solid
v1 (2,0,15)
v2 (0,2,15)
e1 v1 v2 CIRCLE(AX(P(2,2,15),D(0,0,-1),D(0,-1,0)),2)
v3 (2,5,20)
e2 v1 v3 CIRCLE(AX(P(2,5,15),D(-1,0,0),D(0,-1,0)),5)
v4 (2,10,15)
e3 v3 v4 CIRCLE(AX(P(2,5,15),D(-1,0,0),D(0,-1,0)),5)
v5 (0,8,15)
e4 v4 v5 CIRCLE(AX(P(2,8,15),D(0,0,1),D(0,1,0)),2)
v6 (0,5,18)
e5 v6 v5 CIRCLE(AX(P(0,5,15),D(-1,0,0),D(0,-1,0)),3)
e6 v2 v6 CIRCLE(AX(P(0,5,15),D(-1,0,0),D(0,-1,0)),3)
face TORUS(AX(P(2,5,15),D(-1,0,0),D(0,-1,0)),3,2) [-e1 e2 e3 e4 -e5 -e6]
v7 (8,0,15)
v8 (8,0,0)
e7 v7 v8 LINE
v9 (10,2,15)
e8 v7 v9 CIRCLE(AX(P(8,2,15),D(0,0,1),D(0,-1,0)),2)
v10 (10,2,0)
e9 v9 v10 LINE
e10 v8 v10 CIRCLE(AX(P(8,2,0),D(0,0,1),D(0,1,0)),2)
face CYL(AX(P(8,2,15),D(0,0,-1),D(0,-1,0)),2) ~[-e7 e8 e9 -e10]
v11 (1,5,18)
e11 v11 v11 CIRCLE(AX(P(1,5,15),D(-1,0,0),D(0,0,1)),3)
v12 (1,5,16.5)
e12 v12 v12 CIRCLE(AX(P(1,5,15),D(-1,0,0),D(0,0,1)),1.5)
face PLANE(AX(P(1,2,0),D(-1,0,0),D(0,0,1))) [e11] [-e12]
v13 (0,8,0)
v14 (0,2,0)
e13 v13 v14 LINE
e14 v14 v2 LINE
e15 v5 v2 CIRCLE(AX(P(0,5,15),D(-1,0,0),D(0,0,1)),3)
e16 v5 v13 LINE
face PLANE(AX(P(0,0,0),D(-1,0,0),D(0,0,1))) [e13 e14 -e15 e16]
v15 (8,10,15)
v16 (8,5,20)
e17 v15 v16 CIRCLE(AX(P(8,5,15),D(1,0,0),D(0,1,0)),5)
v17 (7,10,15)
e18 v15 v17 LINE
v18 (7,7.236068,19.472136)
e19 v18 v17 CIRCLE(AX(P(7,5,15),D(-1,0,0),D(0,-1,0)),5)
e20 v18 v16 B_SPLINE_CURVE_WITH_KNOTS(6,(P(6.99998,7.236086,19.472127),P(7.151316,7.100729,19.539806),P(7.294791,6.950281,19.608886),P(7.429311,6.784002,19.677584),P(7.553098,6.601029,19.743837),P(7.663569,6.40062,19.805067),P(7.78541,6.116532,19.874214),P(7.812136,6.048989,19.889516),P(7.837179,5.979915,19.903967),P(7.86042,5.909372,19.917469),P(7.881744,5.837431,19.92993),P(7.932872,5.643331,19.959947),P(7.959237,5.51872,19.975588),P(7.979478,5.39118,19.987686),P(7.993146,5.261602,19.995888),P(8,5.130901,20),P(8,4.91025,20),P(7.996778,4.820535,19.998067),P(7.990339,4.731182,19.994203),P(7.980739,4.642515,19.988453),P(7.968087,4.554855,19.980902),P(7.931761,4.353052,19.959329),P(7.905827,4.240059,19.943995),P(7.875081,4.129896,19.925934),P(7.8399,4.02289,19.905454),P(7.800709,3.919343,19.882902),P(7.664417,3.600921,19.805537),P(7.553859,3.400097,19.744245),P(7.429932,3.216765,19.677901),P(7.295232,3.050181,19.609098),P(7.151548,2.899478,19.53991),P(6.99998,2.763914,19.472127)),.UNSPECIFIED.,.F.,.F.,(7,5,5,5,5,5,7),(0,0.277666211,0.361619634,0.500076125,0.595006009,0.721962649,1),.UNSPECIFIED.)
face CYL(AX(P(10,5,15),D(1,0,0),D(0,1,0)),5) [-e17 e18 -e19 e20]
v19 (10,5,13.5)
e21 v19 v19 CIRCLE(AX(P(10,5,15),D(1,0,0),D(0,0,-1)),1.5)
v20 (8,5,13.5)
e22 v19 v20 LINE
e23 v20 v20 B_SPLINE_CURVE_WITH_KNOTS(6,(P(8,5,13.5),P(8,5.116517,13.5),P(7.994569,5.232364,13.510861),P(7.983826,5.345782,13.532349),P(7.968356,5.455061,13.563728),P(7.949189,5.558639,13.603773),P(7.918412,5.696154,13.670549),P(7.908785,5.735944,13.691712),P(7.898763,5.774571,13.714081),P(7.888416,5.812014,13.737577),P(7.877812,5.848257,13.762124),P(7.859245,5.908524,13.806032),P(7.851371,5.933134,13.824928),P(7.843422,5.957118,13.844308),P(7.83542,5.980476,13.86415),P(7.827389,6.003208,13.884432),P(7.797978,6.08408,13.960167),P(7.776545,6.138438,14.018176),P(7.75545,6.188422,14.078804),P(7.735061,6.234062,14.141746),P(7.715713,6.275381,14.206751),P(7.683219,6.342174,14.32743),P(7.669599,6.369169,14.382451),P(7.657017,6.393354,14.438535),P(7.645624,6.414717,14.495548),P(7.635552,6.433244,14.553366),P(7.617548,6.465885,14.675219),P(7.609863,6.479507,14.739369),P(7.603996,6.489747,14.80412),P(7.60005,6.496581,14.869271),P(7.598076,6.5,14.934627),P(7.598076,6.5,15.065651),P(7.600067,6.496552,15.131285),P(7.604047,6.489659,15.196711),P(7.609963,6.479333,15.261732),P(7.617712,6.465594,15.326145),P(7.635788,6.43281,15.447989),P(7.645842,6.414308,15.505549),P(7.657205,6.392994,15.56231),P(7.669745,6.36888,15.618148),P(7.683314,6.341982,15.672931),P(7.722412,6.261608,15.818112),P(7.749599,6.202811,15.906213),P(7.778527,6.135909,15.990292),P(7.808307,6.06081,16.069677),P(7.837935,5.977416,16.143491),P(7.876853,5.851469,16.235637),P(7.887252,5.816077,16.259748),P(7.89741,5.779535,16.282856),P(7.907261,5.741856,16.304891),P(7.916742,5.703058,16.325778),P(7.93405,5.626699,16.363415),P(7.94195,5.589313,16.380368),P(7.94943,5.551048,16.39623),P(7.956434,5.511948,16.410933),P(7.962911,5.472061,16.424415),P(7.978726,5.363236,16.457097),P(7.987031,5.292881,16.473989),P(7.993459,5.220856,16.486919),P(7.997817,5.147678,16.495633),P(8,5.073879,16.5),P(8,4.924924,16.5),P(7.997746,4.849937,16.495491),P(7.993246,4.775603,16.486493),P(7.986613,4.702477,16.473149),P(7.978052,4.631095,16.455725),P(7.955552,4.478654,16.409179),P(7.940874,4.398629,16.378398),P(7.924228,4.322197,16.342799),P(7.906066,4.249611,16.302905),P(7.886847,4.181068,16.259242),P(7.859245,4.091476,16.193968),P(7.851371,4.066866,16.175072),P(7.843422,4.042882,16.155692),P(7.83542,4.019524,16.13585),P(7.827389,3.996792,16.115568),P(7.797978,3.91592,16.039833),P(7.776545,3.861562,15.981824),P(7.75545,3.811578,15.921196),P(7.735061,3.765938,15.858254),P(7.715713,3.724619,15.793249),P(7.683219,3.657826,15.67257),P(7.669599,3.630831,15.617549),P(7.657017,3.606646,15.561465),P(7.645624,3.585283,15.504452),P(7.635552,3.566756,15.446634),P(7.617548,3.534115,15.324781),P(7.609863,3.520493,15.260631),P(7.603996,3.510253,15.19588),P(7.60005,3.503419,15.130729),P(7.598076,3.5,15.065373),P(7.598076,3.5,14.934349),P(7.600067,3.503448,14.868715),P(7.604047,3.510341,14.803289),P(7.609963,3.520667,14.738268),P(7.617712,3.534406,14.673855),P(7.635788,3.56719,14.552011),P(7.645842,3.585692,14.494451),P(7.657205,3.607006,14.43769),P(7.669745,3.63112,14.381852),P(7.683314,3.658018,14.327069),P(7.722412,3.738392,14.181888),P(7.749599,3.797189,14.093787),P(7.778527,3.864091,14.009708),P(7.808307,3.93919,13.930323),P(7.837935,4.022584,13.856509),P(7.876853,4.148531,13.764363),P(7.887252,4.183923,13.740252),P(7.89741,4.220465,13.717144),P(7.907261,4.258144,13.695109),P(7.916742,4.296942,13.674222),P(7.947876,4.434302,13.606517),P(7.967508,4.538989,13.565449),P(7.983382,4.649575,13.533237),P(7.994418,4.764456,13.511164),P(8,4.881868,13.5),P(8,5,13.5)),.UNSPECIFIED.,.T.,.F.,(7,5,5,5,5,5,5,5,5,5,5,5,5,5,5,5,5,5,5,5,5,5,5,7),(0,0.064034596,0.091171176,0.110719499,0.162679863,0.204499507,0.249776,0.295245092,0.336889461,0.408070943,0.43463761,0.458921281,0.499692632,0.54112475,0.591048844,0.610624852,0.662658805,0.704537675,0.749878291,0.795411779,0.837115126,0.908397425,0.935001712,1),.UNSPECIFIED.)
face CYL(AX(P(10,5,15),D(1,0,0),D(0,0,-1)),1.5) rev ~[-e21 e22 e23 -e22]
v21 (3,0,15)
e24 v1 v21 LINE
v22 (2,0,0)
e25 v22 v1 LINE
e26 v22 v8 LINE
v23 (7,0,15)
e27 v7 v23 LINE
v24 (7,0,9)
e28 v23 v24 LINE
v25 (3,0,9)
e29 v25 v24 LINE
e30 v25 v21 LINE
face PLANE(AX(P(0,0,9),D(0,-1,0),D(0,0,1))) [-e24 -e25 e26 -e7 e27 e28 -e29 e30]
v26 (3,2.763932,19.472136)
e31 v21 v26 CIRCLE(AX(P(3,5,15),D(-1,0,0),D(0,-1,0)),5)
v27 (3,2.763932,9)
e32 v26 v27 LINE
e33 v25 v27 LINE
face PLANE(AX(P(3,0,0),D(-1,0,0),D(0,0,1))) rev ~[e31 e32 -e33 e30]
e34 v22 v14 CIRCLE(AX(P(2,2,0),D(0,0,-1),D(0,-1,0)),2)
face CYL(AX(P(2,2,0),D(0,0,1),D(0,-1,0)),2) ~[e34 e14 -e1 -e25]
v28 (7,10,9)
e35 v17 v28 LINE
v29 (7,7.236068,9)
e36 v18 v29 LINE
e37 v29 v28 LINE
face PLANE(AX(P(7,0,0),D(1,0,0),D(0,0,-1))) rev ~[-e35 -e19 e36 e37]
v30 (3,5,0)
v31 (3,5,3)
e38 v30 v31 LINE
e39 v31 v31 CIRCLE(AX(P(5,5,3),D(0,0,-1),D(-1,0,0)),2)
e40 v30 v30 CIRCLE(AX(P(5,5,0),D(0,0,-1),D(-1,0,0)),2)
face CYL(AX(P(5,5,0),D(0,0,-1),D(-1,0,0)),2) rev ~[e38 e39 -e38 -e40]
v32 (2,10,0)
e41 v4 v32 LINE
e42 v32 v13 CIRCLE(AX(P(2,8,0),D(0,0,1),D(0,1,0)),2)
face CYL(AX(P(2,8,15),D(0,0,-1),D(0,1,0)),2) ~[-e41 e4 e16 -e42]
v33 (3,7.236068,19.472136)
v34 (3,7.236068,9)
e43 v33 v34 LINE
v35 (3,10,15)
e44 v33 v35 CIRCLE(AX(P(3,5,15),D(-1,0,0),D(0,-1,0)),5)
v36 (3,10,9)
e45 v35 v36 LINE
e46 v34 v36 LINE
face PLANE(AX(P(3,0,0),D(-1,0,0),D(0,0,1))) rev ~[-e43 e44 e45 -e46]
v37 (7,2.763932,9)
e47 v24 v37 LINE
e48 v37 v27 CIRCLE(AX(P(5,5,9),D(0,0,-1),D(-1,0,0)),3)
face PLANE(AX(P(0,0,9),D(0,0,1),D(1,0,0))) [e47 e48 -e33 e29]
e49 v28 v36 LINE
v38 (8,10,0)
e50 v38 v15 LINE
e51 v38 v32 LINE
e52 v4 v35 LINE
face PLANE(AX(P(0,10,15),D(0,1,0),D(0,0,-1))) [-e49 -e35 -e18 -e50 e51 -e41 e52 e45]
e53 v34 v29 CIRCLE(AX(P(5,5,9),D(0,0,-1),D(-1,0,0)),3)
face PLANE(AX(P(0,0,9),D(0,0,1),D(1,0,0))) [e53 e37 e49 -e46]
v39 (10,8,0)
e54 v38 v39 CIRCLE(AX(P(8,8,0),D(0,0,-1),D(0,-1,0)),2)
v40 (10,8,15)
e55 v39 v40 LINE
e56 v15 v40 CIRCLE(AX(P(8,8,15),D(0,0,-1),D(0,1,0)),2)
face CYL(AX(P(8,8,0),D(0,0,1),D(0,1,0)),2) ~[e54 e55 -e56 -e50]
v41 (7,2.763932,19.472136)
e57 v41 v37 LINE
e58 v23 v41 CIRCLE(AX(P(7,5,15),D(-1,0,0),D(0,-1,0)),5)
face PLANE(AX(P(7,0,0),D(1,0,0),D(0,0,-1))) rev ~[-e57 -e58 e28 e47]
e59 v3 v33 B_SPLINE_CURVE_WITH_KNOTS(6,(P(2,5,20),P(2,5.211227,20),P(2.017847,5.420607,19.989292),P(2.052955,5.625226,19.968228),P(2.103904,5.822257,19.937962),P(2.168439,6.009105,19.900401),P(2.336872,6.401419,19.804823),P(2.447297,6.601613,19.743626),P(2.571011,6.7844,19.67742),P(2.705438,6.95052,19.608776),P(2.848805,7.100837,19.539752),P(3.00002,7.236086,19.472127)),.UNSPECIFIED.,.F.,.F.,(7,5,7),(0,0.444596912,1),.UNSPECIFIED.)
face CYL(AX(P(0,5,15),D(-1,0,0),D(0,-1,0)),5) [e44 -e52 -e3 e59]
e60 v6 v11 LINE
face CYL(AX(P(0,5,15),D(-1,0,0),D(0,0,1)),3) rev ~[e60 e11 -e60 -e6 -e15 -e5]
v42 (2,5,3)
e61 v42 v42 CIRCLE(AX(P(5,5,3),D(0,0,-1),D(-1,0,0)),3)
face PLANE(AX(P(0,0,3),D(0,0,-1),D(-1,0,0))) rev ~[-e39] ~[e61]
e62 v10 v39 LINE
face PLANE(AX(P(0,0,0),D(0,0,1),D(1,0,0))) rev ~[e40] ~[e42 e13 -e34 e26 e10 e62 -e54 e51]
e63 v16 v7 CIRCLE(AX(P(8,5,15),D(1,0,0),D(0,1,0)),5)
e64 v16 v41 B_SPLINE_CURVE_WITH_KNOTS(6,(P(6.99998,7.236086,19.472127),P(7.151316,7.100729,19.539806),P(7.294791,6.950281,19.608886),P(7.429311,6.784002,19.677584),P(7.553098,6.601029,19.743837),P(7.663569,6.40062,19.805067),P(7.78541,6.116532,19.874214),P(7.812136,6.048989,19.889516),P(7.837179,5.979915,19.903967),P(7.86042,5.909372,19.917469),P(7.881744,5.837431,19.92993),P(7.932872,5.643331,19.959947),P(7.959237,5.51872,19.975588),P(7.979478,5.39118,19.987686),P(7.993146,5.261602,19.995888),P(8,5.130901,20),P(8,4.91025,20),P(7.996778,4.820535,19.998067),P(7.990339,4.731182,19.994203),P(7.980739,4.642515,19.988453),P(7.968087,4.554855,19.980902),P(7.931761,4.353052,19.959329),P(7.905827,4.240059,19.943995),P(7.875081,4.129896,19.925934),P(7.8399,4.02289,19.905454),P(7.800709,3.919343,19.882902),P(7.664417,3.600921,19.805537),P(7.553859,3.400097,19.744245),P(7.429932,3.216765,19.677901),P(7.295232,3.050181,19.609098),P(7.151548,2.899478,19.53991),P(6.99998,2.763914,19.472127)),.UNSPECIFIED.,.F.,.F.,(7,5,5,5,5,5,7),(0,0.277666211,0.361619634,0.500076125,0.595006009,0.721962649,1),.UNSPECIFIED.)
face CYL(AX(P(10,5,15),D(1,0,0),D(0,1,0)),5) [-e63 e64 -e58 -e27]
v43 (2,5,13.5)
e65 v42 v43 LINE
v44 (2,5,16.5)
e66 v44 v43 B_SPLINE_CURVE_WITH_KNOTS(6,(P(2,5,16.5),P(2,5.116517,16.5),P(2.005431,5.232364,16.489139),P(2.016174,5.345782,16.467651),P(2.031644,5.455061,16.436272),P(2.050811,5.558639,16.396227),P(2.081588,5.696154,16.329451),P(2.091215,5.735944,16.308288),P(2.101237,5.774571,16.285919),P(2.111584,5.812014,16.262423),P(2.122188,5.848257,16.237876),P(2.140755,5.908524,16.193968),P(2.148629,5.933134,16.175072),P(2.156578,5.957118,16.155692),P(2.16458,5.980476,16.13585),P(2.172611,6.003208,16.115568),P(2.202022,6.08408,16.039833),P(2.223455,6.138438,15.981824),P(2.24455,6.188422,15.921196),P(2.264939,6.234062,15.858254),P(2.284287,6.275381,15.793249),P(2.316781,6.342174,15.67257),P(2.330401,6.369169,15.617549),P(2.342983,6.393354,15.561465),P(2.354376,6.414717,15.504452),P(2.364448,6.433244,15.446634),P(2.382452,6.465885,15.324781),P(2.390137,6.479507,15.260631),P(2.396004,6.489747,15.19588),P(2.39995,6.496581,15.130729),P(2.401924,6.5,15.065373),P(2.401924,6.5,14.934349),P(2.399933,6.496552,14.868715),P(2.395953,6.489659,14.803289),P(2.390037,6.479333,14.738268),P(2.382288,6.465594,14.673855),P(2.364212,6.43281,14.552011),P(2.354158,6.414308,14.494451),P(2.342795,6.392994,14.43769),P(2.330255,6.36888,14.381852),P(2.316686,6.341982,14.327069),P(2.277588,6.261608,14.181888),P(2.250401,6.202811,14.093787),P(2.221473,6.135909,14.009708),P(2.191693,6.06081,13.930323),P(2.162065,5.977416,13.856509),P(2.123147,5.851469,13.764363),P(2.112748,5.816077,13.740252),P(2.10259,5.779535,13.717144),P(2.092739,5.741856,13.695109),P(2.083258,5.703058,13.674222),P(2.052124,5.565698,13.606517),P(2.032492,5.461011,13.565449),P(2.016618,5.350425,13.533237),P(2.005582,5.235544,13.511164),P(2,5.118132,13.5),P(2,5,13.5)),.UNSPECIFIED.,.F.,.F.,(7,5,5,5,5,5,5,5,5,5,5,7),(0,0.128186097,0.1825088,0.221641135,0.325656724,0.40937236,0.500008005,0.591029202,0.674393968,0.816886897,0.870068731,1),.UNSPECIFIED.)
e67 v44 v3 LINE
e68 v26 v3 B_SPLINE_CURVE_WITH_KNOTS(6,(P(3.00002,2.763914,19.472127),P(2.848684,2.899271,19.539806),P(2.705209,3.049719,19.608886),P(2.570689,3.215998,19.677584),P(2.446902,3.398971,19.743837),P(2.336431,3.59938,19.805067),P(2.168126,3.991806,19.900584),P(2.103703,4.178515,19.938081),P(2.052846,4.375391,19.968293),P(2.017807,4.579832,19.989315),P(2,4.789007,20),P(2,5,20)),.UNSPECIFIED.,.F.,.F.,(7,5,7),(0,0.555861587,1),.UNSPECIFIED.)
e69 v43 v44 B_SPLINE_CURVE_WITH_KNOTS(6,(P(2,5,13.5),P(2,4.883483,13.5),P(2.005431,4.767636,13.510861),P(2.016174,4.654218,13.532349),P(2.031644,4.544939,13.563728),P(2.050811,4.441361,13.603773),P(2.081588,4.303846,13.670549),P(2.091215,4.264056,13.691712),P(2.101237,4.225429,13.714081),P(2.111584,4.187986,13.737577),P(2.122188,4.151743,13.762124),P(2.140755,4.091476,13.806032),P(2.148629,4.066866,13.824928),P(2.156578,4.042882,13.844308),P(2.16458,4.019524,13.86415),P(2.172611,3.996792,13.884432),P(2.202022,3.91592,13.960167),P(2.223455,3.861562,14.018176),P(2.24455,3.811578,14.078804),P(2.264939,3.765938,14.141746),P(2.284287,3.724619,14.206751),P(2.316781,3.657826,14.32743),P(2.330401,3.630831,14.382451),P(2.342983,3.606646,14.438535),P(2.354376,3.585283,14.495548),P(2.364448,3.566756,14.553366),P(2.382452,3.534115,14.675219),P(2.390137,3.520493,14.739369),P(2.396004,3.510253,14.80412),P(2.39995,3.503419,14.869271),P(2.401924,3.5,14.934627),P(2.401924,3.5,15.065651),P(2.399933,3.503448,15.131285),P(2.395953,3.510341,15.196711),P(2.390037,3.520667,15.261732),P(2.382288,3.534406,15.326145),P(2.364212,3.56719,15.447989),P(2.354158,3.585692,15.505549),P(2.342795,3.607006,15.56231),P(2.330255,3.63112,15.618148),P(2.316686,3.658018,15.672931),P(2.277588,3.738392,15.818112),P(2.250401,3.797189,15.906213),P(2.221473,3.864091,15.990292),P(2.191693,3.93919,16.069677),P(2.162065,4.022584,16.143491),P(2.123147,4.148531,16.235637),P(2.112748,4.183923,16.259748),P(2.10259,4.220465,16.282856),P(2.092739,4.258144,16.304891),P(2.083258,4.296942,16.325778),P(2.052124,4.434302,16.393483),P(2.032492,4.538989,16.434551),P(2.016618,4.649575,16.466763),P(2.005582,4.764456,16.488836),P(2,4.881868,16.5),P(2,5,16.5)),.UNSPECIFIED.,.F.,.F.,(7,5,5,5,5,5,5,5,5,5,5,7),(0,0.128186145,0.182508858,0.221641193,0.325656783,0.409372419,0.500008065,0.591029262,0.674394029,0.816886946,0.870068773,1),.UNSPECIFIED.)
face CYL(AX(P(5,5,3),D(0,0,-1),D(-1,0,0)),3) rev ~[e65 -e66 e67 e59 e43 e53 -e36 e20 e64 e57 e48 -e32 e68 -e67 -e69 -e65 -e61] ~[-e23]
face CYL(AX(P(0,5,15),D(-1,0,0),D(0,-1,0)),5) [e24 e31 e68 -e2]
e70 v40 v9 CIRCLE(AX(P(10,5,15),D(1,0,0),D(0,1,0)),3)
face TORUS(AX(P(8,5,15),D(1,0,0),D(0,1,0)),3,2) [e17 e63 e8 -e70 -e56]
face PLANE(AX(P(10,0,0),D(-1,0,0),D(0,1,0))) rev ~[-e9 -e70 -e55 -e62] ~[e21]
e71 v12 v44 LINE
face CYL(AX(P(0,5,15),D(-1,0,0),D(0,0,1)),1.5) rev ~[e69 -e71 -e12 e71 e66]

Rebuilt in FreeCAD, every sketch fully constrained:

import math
import FreeCAD as App
import Part
import Sketcher
Q = App.Units.Quantity


def edges_at(feature, points):
    """Names of the edges that pass closest to the given points."""
    edges = feature.Shape.Edges
    near = lambda p: min(range(len(edges)), key=lambda i: edges[i].distToShape(Part.Vertex(*p))[0])
    return sorted({f"Edge{near(p) + 1}" for p in points})

doc = App.newDocument("Part")
body = doc.addObject("PartDesign::Body", "Body")

sketch1 = body.newObject("Sketcher::SketchObject", "Sketch")
sketch1.AttachmentSupport = (doc.getObject("XY_Plane"), [""])
sketch1.MapMode = "FlatFace"
sketch1.addGeometry(Part.LineSegment(App.Vector(0, 10, 0), App.Vector(0, 0, 0)), False)
sketch1.addGeometry(Part.LineSegment(App.Vector(0, 0, 0), App.Vector(10, 0, 0)), False)
sketch1.addGeometry(Part.LineSegment(App.Vector(10, 0, 0), App.Vector(10, 10, 0)), False)
sketch1.addGeometry(Part.LineSegment(App.Vector(10, 10, 0), App.Vector(0, 10, 0)), False)
sketch1.addConstraint(Sketcher.Constraint("Coincident", 0, 2, 1, 1))
sketch1.addConstraint(Sketcher.Constraint("Coincident", 1, 2, 2, 1))
sketch1.addConstraint(Sketcher.Constraint("Coincident", 2, 2, 3, 1))
sketch1.addConstraint(Sketcher.Constraint("Coincident", 3, 2, 0, 1))
sketch1.addConstraint(Sketcher.Constraint("Vertical", 0))
sketch1.addConstraint(Sketcher.Constraint("Horizontal", 1))
sketch1.addConstraint(Sketcher.Constraint("Vertical", 2))
sketch1.addConstraint(Sketcher.Constraint("Horizontal", 3))
sketch1.addConstraint(Sketcher.Constraint("Coincident", 0, 2, -1, 1))
sketch1.addConstraint(Sketcher.Constraint("Equal", 3, 0))
sketch1.addConstraint(Sketcher.Constraint("DistanceX", 1, 1, 1, 2, Q("10 mm")))
pad1 = body.newObject("PartDesign::Pad", "Pad")
pad1.Profile = sketch1
pad1.Length = 9

sketch2 = body.newObject("Sketcher::SketchObject", "Sketch001")
sketch2.AttachmentSupport = (doc.getObject("YZ_Plane"), [""])
sketch2.MapMode = "FlatFace"
sketch2.AttachmentOffset = App.Placement(App.Vector(0, 0, 10), App.Rotation())
sketch2.addGeometry(Part.LineSegment(App.Vector(10, 9, 0), App.Vector(10, 15, 0)), False)
sketch2.addGeometry(Part.ArcOfCircle(Part.Circle(App.Vector(5, 15, 0), App.Vector(0, 0, 1), 5), math.radians(0), math.radians(180)), False)
sketch2.addGeometry(Part.LineSegment(App.Vector(0, 15, 0), App.Vector(0, 9, 0)), False)
sketch2.addGeometry(Part.LineSegment(App.Vector(0, 9, 0), App.Vector(10, 9, 0)), False)
sketch2.addGeometry(Part.Circle(App.Vector(5, 15, 0), App.Vector(0, 0, 1), 1.5), False)
sketch2.addConstraint(Sketcher.Constraint("Tangent", 0, 2, 1, 1))
sketch2.addConstraint(Sketcher.Constraint("Tangent", 1, 2, 2, 1))
sketch2.addConstraint(Sketcher.Constraint("Coincident", 2, 2, 3, 1))
sketch2.addConstraint(Sketcher.Constraint("Coincident", 3, 2, 0, 1))
sketch2.addConstraint(Sketcher.Constraint("Vertical", 0))
sketch2.addConstraint(Sketcher.Constraint("Vertical", 2))
sketch2.addConstraint(Sketcher.Constraint("Horizontal", 3))
sketch2.addConstraint(Sketcher.Constraint("Coincident", 4, 3, 1, 3))
sketch2.addConstraint(Sketcher.Constraint("PointOnObject", 1, 2, -2))
sketch2.addConstraint(Sketcher.Constraint("Diameter", 4, Q("3 mm")))
sketch2.addConstraint(Sketcher.Constraint("Radius", 1, Q("5 mm")))
sketch2.addConstraint(Sketcher.Constraint("DistanceY", -1, 1, 1, 3, Q("15 mm")))
sketch2.addConstraint(Sketcher.Constraint("DistanceY", 0, 1, 0, 2, Q("6 mm")))
pad2 = body.newObject("PartDesign::Pad", "Pad001")
pad2.Profile = sketch2
pad2.Length = 3
pad2.Reversed = True

sketch3 = body.newObject("Sketcher::SketchObject", "Sketch002")
sketch3.AttachmentSupport = (doc.getObject("YZ_Plane"), [""])
sketch3.MapMode = "FlatFace"
sketch3.addGeometry(Part.LineSegment(App.Vector(0, 9, 0), App.Vector(0, 15, 0)), False)
sketch3.addGeometry(Part.ArcOfCircle(Part.Circle(App.Vector(5, 15, 0), App.Vector(0, 0, 1), 5), math.radians(0), math.radians(180)), False)
sketch3.addGeometry(Part.LineSegment(App.Vector(10, 15, 0), App.Vector(10, 9, 0)), False)
sketch3.addGeometry(Part.LineSegment(App.Vector(10, 9, 0), App.Vector(0, 9, 0)), False)
sketch3.addGeometry(Part.Circle(App.Vector(5, 15, 0), App.Vector(0, 0, 1), 1.5), False)
sketch3.addConstraint(Sketcher.Constraint("Tangent", 0, 2, 1, 2))
sketch3.addConstraint(Sketcher.Constraint("Tangent", 1, 1, 2, 1))
sketch3.addConstraint(Sketcher.Constraint("Coincident", 2, 2, 3, 1))
sketch3.addConstraint(Sketcher.Constraint("Coincident", 3, 2, 0, 1))
sketch3.addConstraint(Sketcher.Constraint("Vertical", 0))
sketch3.addConstraint(Sketcher.Constraint("Vertical", 2))
sketch3.addConstraint(Sketcher.Constraint("Horizontal", 3))
sketch3.addConstraint(Sketcher.Constraint("Coincident", 4, 3, 1, 3))
sketch3.addConstraint(Sketcher.Constraint("PointOnObject", 0, 2, -2))
sketch3.addConstraint(Sketcher.Constraint("Diameter", 4, Q("3 mm")))
sketch3.addConstraint(Sketcher.Constraint("Radius", 1, Q("5 mm")))
sketch3.addConstraint(Sketcher.Constraint("DistanceY", 0, 1, 0, 2, Q("6 mm")))
sketch3.addConstraint(Sketcher.Constraint("DistanceY", -1, 1, 1, 3, Q("15 mm")))
pad3 = body.newObject("PartDesign::Pad", "Pad002")
pad3.Profile = sketch3
pad3.Length = 3
doc.recompute()

fillet = body.newObject("PartDesign::Fillet", "Fillet")
fillet.Base = (pad3, edges_at(pad3, [
    (0, 5, 20),
    (0, 0, 7.5),
    (0, 10, 7.5),
    (10, 5, 20),
    (10, 0, 7.5),
    (10, 10, 7.5),
]))
fillet.Radius = 2

sketch4 = body.newObject("Sketcher::SketchObject", "Sketch003")
sketch4.AttachmentSupport = (doc.getObject("XY_Plane"), [""])
sketch4.MapMode = "FlatFace"
sketch4.addGeometry(Part.Circle(App.Vector(5, 5, 0), App.Vector(0, 0, 1), 2), False)
sketch4.addConstraint(Sketcher.Constraint("Diameter", 0, Q("4 mm")))
sketch4.addConstraint(Sketcher.Constraint("DistanceX", -1, 1, 0, 3, Q("5 mm")))
sketch4.addConstraint(Sketcher.Constraint("DistanceY", -1, 1, 0, 3, Q("5 mm")))
pocket1 = body.newObject("PartDesign::Pocket", "Pocket")
pocket1.Profile = sketch4
pocket1.Type = "ThroughAll"
pocket1.Reversed = True

sketch5 = body.newObject("Sketcher::SketchObject", "Sketch004")
sketch5.AttachmentSupport = (doc.getObject("XY_Plane"), [""])
sketch5.MapMode = "FlatFace"
sketch5.AttachmentOffset = App.Placement(App.Vector(0, 0, 3), App.Rotation())
sketch5.addGeometry(Part.Circle(App.Vector(5, 5, 0), App.Vector(0, 0, 1), 3), False)
sketch5.addGeometry(Part.Circle(App.Vector(5, 5, 0), App.Vector(0, 0, 1), 2), False)
sketch5.addConstraint(Sketcher.Constraint("Coincident", 1, 3, 0, 3))
sketch5.addConstraint(Sketcher.Constraint("Diameter", 0, Q("6 mm")))
sketch5.addConstraint(Sketcher.Constraint("Diameter", 1, Q("4 mm")))
sketch5.addConstraint(Sketcher.Constraint("DistanceX", -1, 1, 0, 3, Q("5 mm")))
sketch5.addConstraint(Sketcher.Constraint("DistanceY", -1, 1, 0, 3, Q("5 mm")))
pocket2 = body.newObject("PartDesign::Pocket", "Pocket001")
pocket2.Profile = sketch5
pocket2.Type = "ThroughAll"
pocket2.Reversed = True

sketch6 = body.newObject("Sketcher::SketchObject", "Sketch005")
sketch6.AttachmentSupport = (doc.getObject("YZ_Plane"), [""])
sketch6.MapMode = "FlatFace"
sketch6.addGeometry(Part.Circle(App.Vector(5, 15, 0), App.Vector(0, 0, 1), 3), False)
sketch6.addGeometry(Part.Circle(App.Vector(5, 15, 0), App.Vector(0, 0, 1), 1.5), False)
sketch6.addConstraint(Sketcher.Constraint("Coincident", 1, 3, 0, 3))
sketch6.addConstraint(Sketcher.Constraint("Diameter", 0, Q("6 mm")))
sketch6.addConstraint(Sketcher.Constraint("Diameter", 1, Q("3 mm")))
sketch6.addConstraint(Sketcher.Constraint("DistanceX", -1, 1, 0, 3, Q("5 mm")))
sketch6.addConstraint(Sketcher.Constraint("DistanceY", -1, 1, 0, 3, Q("15 mm")))
pocket3 = body.newObject("PartDesign::Pocket", "Pocket002")
pocket3.Profile = sketch6
pocket3.Length = 1
pocket3.Reversed = True

doc.recompute()
